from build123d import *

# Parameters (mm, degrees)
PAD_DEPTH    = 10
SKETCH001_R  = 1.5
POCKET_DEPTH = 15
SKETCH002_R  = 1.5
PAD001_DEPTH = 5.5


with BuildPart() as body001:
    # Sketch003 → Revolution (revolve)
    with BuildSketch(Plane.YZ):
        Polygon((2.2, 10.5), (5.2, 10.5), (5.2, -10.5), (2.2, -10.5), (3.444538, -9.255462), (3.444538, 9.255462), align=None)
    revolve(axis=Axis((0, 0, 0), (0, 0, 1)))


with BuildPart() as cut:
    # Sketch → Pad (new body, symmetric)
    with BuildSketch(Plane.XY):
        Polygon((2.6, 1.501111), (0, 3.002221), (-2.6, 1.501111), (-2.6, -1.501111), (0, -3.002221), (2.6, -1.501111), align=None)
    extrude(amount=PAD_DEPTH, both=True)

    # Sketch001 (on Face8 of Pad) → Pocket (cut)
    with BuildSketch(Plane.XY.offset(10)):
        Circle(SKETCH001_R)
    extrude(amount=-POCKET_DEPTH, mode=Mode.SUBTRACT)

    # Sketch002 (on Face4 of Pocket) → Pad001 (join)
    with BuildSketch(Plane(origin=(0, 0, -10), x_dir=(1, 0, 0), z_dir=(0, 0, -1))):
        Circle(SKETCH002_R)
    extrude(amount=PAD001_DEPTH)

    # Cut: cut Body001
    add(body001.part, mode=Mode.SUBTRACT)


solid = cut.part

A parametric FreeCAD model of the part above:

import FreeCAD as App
import Part
import Sketcher
Q = App.Units.Quantity


def add_polygon(sketch, points):
    """Adds a closed chain of lines whose ends are joined by coincident constraints."""
    first, n = sketch.GeometryCount, len(points)
    for a, b in zip(points, points[1:] + points[:1]):
        sketch.addGeometry(Part.LineSegment(App.Vector(*a, 0), App.Vector(*b, 0)), False)
    for i in range(n):
        sketch.addConstraint(Sketcher.Constraint("Coincident", first + i, 2, first + (i + 1) % n, 1))

doc = App.newDocument("Part")
body = doc.addObject("PartDesign::Body", "Body")

# Sketch on YZ plane
sketch1 = body.newObject("Sketcher::SketchObject", "Sketch")
sketch1.AttachmentSupport = (doc.getObject("YZ_Plane"), [""])
sketch1.MapMode = "FlatFace"
add_polygon(sketch1, [(5.2, 10.5), (2.2, 10.5), (3.444538, 9.255462), (3.444538, -9.255462), (2.2, -10.5), (5.2, -10.5)])  # lines 0-5
sketch1.addConstraint([
    Sketcher.Constraint("Horizontal", 0),
    Sketcher.Constraint("Vertical", 2),
    Sketcher.Constraint("Horizontal", 4),
    Sketcher.Constraint("Vertical", 5),
    Sketcher.Constraint("Symmetric", 0, 2, 3, 2, -1),
    Sketcher.Constraint("Perpendicular", 1, 3),
    Sketcher.Constraint("Equal", 1, 3),
    Sketcher.Constraint("DistanceX", 0, 2, 0, 1, Q("3 mm")),
    Sketcher.Constraint("DistanceY", 5, 1, 5, 2, Q("21 mm")),
    Sketcher.Constraint("DistanceX", -1, 1, 0, 2, Q("2.2 mm")),
    Sketcher.Constraint("DistanceY", 2, 2, 2, 1, Q("18.510924 mm")),
])
revolution = body.newObject("PartDesign::Revolution", "Revolution")
revolution.Profile = sketch1
revolution.ReferenceAxis = (sketch1, ["V_Axis"])
revolution.Angle = 360
body2 = doc.addObject("PartDesign::Body", "Body001")

# Sketch on XY plane
sketch2 = body2.newObject("Sketcher::SketchObject", "Sketch001")
sketch2.AttachmentSupport = (doc.getObject("XY_Plane001"), [""])
sketch2.MapMode = "FlatFace"
add_polygon(sketch2, [(2.6, 1.501111), (0, 3.002221), (-2.6, 1.501111), (-2.6, -1.501111), (0, -3.002221), (2.6, -1.501111)])  # lines 0-5
sketch2.addConstraint([
    Sketcher.Constraint("Vertical", 2),
    Sketcher.Constraint("Vertical", 5),
    Sketcher.Constraint("Symmetric", 0, 2, 3, 2, -1, 1),
    Sketcher.Constraint("Symmetric", 1, 2, 4, 2, -1, 1),
    Sketcher.Constraint("PointOnObject", 0, 2, -2),
    Sketcher.Constraint("Parallel", 0, 3),
    Sketcher.Constraint("Horizontal", 2, 2, 4, 2),
    Sketcher.Constraint("Angle", 0, Q("150.000012 deg")),
    Sketcher.Constraint("DistanceX", 1, 2, -1, 1, Q("2.6 mm")),
    Sketcher.Constraint("DistanceY", 2, 2, 2, 1, Q("3.002222 mm")),
])
pad1 = body2.newObject("PartDesign::Pad", "Pad")
pad1.Profile = sketch2
pad1.Length = 20
pad1.Midplane = True

# Sketch on XY plane
sketch3 = body2.newObject("Sketcher::SketchObject", "Sketch002")
sketch3.AttachmentSupport = (doc.getObject("XY_Plane001"), [""])
sketch3.MapMode = "FlatFace"
sketch3.AttachmentOffset = App.Placement(App.Vector(0, 0, 10), App.Rotation())
sketch3.addGeometry(Part.Circle(App.Vector(0, 0, 0), App.Vector(0, 0, 1), 1.5), False)
sketch3.addConstraint([
    Sketcher.Constraint("Coincident", 0, 3, -1, 1),
    Sketcher.Constraint("Diameter", 0, Q("3 mm")),
])
pocket1 = body2.newObject("PartDesign::Pocket", "Pocket")
pocket1.Profile = sketch3
pocket1.Length = 15

# Sketch on XY plane
sketch4 = body2.newObject("Sketcher::SketchObject", "Sketch003")
sketch4.AttachmentSupport = (doc.getObject("XY_Plane001"), [""])
sketch4.MapMode = "FlatFace"
sketch4.AttachmentOffset = App.Placement(App.Vector(0, 0, -10), App.Rotation())
sketch4.addGeometry(Part.Circle(App.Vector(0, 0, 0), App.Vector(0, 0, 1), 1.5), False)
sketch4.addConstraint([
    Sketcher.Constraint("Coincident", 0, 3, -1, 1),
    Sketcher.Constraint("Diameter", 0, Q("3 mm")),
])
pad2 = body2.newObject("PartDesign::Pad", "Pad001")
pad2.Profile = sketch4
pad2.Length = 5.5
pad2.Reversed = True
doc.recompute()

boolean = body2.newObject("PartDesign::Boolean", "Boolean")
boolean.Type = "Cut"
boolean.addObjects([body])

doc.recompute()
